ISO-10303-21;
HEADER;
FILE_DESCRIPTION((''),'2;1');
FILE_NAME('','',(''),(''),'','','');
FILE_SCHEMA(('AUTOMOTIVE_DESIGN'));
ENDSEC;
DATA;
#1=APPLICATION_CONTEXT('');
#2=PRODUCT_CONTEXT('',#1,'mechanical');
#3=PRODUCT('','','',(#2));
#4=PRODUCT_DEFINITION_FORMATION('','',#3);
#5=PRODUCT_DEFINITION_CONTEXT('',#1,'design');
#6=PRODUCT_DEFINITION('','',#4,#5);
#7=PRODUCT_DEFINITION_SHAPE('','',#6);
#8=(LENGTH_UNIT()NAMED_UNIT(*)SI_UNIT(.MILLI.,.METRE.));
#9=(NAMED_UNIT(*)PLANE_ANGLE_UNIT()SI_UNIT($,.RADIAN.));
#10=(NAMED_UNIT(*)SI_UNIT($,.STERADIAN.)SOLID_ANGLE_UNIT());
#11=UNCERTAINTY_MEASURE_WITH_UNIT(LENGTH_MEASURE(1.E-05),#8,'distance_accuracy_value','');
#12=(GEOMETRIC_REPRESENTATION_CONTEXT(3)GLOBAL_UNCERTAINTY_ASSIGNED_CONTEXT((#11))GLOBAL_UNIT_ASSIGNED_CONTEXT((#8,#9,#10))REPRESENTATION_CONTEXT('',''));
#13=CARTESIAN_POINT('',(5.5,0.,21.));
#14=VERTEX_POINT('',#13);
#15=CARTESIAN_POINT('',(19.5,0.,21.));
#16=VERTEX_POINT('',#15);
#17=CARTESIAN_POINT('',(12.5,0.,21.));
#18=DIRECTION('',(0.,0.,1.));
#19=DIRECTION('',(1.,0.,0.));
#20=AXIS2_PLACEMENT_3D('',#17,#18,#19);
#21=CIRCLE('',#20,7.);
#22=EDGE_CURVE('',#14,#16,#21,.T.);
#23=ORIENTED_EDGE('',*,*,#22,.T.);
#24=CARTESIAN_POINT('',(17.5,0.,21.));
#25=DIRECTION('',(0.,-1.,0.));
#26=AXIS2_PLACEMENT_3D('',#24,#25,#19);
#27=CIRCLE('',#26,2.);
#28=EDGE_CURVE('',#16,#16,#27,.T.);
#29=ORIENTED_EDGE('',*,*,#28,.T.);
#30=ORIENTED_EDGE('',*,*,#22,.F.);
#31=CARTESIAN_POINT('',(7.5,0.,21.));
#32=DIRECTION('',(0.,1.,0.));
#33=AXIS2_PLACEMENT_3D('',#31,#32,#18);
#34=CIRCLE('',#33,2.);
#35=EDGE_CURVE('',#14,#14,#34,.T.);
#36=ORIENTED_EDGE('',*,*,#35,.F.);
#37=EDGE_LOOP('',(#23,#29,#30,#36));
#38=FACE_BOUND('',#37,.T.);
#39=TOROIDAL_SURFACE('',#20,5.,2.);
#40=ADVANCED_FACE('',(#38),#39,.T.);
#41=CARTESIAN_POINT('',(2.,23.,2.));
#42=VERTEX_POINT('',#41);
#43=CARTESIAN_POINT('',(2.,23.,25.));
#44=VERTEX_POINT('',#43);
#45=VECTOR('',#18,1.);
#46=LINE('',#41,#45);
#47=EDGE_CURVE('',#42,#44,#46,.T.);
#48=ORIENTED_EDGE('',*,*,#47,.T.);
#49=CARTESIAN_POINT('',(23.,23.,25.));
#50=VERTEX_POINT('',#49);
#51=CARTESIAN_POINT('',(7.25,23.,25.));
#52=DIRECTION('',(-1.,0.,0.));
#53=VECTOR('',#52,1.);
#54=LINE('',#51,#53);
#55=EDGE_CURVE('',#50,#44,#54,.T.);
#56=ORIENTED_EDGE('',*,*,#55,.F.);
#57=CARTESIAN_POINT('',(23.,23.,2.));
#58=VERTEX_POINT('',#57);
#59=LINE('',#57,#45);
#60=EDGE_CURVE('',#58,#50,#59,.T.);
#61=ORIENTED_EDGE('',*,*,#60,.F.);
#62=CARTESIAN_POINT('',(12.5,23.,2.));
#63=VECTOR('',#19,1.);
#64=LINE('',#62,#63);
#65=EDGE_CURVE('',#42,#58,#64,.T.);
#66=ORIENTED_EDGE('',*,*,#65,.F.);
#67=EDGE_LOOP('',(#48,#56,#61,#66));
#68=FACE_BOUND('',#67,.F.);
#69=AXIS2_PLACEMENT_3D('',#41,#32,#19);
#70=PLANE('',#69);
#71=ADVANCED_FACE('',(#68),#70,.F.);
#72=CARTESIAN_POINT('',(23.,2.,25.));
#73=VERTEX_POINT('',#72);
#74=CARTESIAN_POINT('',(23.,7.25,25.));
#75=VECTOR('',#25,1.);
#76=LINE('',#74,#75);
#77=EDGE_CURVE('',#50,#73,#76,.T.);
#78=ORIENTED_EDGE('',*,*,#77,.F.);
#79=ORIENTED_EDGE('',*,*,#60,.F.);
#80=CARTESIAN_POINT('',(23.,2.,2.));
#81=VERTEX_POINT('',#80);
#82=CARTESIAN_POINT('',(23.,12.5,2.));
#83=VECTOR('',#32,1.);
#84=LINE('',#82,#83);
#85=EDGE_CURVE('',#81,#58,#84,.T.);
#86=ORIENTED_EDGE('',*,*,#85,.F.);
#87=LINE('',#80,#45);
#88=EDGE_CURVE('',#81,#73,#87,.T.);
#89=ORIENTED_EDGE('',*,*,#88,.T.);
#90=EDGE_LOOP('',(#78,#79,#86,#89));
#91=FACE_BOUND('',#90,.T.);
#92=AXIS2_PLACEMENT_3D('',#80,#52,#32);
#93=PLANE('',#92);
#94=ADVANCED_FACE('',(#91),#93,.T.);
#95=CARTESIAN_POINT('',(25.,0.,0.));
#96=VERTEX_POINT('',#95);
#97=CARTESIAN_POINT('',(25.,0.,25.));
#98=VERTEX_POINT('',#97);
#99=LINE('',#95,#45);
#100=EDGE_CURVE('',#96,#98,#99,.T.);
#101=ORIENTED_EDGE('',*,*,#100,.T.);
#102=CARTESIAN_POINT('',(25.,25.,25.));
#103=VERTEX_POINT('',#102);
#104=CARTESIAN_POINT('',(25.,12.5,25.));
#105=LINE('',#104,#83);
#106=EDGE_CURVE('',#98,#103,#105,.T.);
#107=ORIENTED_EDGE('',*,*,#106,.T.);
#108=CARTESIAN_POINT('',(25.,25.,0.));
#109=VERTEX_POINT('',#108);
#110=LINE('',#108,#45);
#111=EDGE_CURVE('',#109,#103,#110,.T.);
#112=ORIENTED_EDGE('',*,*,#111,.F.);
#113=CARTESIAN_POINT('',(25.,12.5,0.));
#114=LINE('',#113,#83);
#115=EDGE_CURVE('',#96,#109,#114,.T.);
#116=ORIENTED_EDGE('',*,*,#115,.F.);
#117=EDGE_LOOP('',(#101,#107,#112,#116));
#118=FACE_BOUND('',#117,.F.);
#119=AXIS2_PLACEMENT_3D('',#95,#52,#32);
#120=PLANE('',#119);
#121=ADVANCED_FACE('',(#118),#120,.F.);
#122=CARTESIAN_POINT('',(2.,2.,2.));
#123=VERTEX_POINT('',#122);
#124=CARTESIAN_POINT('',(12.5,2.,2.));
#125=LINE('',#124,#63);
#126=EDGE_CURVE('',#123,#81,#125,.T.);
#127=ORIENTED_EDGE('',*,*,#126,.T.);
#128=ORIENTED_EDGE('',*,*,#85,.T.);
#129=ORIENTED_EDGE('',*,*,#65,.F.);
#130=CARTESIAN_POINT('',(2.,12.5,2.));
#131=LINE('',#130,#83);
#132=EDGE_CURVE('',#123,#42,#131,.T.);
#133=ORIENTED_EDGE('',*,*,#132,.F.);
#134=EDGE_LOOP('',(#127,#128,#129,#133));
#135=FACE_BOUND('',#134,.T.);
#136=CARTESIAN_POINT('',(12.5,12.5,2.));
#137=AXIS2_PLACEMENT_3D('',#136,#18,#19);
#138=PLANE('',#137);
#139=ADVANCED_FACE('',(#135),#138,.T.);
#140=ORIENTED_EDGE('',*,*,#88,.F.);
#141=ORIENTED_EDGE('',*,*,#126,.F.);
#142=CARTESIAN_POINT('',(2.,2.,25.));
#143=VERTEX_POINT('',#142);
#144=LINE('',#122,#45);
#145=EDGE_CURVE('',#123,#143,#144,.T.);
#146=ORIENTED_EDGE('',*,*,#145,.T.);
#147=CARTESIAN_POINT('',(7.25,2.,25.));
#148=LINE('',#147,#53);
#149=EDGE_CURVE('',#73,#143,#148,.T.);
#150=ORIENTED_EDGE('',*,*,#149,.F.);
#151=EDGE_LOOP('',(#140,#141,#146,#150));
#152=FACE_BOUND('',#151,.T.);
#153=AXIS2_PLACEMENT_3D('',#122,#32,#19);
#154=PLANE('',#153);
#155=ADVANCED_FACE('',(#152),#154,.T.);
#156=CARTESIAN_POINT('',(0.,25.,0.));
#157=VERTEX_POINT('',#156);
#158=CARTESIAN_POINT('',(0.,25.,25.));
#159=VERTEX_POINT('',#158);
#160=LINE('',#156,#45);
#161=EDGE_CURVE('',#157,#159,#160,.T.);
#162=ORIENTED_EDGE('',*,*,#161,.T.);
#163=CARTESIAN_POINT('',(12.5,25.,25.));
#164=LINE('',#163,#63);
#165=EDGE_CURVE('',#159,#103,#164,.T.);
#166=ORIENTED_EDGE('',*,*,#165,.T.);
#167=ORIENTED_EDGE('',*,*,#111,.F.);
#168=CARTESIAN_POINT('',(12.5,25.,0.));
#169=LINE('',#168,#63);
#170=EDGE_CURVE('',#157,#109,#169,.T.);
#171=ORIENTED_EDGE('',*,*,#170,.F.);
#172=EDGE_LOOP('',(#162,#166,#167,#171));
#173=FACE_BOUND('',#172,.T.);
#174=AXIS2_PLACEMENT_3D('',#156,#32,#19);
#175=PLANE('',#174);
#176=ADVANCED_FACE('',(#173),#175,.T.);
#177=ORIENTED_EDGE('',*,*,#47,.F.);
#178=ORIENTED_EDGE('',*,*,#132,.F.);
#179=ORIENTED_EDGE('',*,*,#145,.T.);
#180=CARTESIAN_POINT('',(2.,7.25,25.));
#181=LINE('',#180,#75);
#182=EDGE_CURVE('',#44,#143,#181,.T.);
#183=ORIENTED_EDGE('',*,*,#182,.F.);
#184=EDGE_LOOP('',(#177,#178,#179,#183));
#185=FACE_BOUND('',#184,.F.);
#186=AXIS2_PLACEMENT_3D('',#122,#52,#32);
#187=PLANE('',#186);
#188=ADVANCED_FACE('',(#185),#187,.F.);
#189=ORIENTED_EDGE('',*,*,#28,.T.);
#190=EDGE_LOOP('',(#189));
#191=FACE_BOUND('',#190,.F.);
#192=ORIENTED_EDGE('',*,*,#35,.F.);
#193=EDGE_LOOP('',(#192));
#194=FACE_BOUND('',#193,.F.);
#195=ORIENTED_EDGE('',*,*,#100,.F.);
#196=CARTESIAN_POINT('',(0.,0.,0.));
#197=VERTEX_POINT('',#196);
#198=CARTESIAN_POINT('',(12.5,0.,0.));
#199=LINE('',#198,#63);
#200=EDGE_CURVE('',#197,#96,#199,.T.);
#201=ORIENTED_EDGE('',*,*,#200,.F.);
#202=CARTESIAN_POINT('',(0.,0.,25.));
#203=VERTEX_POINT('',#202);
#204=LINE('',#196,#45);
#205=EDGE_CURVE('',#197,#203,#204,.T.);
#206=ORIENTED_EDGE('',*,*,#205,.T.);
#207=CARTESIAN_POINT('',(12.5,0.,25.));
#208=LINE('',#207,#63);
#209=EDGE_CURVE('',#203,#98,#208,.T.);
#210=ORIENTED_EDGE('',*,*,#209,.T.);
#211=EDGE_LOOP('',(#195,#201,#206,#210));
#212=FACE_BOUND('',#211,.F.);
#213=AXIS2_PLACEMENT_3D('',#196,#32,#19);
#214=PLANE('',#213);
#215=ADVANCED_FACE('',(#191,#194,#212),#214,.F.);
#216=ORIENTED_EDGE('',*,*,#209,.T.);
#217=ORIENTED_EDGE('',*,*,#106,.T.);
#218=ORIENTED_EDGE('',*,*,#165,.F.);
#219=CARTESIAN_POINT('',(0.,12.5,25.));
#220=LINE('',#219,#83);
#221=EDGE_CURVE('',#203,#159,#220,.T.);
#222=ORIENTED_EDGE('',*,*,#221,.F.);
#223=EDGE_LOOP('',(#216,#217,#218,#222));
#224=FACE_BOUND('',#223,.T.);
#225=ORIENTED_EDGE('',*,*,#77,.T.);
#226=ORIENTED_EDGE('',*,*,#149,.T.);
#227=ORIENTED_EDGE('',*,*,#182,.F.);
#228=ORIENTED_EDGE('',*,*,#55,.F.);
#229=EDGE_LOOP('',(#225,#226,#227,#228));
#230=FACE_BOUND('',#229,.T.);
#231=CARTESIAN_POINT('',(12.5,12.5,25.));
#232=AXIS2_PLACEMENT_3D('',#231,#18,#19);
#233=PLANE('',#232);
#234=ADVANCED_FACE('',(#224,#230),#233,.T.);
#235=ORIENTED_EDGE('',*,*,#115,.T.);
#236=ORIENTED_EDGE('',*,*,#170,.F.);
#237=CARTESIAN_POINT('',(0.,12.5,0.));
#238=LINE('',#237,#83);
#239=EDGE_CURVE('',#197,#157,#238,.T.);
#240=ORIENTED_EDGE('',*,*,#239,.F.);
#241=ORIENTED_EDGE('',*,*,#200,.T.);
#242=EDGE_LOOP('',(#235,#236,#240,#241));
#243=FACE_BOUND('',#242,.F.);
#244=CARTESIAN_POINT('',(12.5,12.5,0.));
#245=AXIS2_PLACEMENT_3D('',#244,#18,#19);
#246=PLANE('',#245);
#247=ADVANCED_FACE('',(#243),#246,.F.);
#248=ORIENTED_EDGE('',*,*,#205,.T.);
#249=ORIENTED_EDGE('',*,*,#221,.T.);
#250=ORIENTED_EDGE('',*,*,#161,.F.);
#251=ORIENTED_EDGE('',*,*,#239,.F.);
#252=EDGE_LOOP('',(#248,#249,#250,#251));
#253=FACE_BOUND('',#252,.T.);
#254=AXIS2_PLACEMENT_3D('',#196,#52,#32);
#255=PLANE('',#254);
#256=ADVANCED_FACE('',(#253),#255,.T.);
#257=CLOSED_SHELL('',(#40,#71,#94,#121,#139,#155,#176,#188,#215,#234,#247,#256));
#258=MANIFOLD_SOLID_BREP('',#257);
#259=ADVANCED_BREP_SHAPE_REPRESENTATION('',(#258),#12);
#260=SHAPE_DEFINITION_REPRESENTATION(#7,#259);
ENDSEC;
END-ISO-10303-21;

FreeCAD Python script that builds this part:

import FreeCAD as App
import Part
import Sketcher
from FreeCAD import Vector


def add_polygon(sketch, points):
    """Adds a closed chain of lines whose ends are joined by coincident constraints."""
    first, n = sketch.GeometryCount, len(points)
    for a, b in zip(points, points[1:] + points[:1]):
        sketch.addGeometry(Part.LineSegment(App.Vector(*a, 0), App.Vector(*b, 0)), False)
    for i in range(n):
        sketch.addConstraint(Sketcher.Constraint("Coincident", first + i, 2, first + (i + 1) % n, 1))

doc = App.newDocument("Part")
body = doc.addObject("PartDesign::Body", "Body")

# Sketch on XY plane
sketch1 = body.newObject("Sketcher::SketchObject", "Sketch")
sketch1.AttachmentSupport = (doc.getObject("XY_Plane"), [""])
sketch1.MapMode = "FlatFace"
sketch1.AttachmentOffset = App.Placement(Vector(0, 0, 2), App.Rotation())
add_polygon(sketch1, [(2, 23), (2, 2), (23, 2), (23, 23)])  # lines 0-3
sketch1.addConstraint([
    Sketcher.Constraint("Vertical", 0),
    Sketcher.Constraint("Horizontal", 1),
    Sketcher.Constraint("Vertical", 2),
    Sketcher.Constraint("Horizontal", 3),
    Sketcher.Constraint("Equal", 3, 0),
    Sketcher.Constraint("DistanceX", 1, 1, 1, 2, 21.0),
    Sketcher.Constraint("DistanceX", -1, 1, 0, 2, 2.0),
    Sketcher.Constraint("DistanceY", -1, 1, 0, 2, 2.0),
])
pad1 = body.newObject("PartDesign::Pad", "Pad")
pad1.Profile = sketch1
pad1.Length = 24
body2 = doc.addObject("PartDesign::Body", "Body001")

# Sketch on XZ plane
sketch2 = body2.newObject("Sketcher::SketchObject", "Sketch001")
sketch2.AttachmentSupport = (doc.getObject("XZ_Plane001"), [""])
sketch2.MapMode = "FlatFace"
sketch2.addGeometry(Part.Circle(Vector(17.5, 21, 0), Vector(0, 0, 1), 2), False)
sketch2.addGeometry(Part.LineSegment(Vector(12.5, 21, 0), Vector(12.5, 31, 0)), True)  # axis
sketch2.addConstraint([
    Sketcher.Constraint("Vertical", 1),
    Sketcher.Constraint("Horizontal", 0, 3, 1, 1),
    Sketcher.Constraint("Diameter", 0, 4.0),
    Sketcher.Constraint("DistanceY", 1, 1, 1, 2, 10.0),
    Sketcher.Constraint("DistanceY", -1, 1, 0, 3, 21.0),
    Sketcher.Constraint("DistanceX", 1, 1, 0, 3, 5.0),
    Sketcher.Constraint("DistanceX", -1, 1, 0, 3, 17.5),
])
revolution = body2.newObject("PartDesign::Revolution", "Revolution")
revolution.Profile = sketch2
revolution.ReferenceAxis = (sketch2, ["Axis0"])
revolution.Angle = 360
body3 = doc.addObject("PartDesign::Body", "Body002")

# Sketch on XY plane
sketch3 = body3.newObject("Sketcher::SketchObject", "Sketch002")
sketch3.AttachmentSupport = (doc.getObject("XY_Plane002"), [""])
sketch3.MapMode = "FlatFace"
add_polygon(sketch3, [(0, 25), (0, 0), (25, 0), (25, 25)])  # lines 0-3
sketch3.addConstraint([
    Sketcher.Constraint("Vertical", 0),
    Sketcher.Constraint("Horizontal", 1),
    Sketcher.Constraint("Vertical", 2),
    Sketcher.Constraint("Horizontal", 3),
    Sketcher.Constraint("Coincident", 0, 2, -1, 1),
    Sketcher.Constraint("Equal", 3, 0),
    Sketcher.Constraint("DistanceX", 1, 1, 1, 2, 25.0),
])
pad2 = body3.newObject("PartDesign::Pad", "Pad001")
pad2.Profile = sketch3
pad2.Length = 25
doc.recompute()

boolean = body3.newObject("PartDesign::Boolean", "Boolean")
boolean.Type = "Fuse"
boolean.addObjects([body2])
doc.recompute()

boolean2 = body3.newObject("PartDesign::Boolean", "Boolean001")
boolean2.Type = "Cut"
boolean2.addObjects([body])

doc.recompute()
